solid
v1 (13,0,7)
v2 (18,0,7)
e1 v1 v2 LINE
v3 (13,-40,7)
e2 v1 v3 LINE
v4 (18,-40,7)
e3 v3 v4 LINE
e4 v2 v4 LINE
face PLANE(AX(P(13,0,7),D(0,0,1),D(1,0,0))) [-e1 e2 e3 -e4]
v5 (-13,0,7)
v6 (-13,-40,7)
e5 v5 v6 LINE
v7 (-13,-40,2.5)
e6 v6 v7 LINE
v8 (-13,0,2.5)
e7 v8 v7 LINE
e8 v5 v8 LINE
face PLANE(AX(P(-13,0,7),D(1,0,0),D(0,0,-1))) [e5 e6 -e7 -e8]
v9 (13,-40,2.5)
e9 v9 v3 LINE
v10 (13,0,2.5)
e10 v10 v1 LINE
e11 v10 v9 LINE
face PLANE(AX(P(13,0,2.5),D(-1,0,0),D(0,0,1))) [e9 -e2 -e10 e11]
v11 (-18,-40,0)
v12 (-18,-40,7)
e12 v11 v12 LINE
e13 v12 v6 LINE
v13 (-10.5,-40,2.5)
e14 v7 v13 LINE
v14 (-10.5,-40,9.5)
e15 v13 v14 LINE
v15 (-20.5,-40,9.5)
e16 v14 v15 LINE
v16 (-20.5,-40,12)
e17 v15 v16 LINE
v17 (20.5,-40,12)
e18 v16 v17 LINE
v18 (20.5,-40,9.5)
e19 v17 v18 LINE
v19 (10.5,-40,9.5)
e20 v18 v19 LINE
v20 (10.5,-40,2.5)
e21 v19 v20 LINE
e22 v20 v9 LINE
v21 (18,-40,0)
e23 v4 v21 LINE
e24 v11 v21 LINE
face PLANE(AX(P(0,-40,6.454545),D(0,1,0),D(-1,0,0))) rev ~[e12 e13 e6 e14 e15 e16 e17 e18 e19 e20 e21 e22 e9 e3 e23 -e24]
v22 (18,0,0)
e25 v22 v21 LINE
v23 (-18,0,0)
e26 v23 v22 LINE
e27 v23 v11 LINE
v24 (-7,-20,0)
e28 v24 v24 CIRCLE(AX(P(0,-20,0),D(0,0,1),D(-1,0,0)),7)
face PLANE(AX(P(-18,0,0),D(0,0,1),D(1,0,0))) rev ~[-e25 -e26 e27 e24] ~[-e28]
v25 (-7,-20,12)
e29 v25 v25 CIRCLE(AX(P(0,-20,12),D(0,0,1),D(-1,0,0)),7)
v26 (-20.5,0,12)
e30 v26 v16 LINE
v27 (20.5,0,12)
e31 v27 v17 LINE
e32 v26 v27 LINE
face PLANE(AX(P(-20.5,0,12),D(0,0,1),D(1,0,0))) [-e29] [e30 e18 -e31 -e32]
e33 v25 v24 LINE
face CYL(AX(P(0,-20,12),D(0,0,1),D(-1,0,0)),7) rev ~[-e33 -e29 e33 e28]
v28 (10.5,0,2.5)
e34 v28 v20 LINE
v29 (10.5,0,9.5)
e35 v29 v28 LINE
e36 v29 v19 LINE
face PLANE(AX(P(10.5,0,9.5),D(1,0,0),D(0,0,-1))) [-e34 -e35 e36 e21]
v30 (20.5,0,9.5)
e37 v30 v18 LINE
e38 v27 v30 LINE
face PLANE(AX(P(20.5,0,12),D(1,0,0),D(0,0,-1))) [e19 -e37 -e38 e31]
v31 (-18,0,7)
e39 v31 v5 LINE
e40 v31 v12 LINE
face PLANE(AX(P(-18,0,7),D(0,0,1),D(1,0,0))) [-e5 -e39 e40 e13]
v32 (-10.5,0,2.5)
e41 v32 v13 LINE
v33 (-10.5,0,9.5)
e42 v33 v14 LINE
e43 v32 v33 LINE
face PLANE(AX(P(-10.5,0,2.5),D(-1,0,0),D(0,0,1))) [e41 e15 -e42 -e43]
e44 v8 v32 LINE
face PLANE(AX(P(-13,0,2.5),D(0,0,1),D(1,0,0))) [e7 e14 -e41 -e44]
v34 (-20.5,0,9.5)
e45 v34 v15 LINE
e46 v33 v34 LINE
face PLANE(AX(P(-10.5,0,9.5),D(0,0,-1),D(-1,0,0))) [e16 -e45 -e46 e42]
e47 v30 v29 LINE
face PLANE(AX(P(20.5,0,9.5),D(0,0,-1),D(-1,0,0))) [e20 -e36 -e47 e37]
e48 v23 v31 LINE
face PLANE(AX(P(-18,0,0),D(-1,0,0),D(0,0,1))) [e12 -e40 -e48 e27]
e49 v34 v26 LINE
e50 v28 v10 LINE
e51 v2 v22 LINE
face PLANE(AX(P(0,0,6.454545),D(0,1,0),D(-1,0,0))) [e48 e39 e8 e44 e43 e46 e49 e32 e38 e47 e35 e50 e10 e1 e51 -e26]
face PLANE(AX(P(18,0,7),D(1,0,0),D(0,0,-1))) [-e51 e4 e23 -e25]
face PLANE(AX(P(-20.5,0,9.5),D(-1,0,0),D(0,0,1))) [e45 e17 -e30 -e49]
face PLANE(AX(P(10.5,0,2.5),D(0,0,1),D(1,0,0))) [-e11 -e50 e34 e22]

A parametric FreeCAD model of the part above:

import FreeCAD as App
import Part
import Sketcher
from FreeCAD import Vector

doc = App.newDocument("Part")
body = doc.addObject("PartDesign::Body", "Body")

sketch1 = body.newObject("Sketcher::SketchObject", "Sketch")
sketch1.AttachmentSupport = (doc.getObject("XZ_Plane"), [""])
sketch1.MapMode = "FlatFace"
sketch1.addGeometry(Part.LineSegment(Vector(-18, 0, 0), Vector(18, 0, 0)), False)
sketch1.addGeometry(Part.LineSegment(Vector(18, 0, 0), Vector(18, 7, 0)), False)
sketch1.addGeometry(Part.LineSegment(Vector(18, 7, 0), Vector(13, 7, 0)), False)
sketch1.addGeometry(Part.LineSegment(Vector(13, 7, 0), Vector(13, 2.5, 0)), False)
sketch1.addGeometry(Part.LineSegment(Vector(13, 2.5, 0), Vector(10.5, 2.5, 0)), False)
sketch1.addGeometry(Part.LineSegment(Vector(10.5, 2.5, 0), Vector(10.5, 9.5, 0)), False)
sketch1.addGeometry(Part.LineSegment(Vector(10.5, 9.5, 0), Vector(20.5, 9.5, 0)), False)
sketch1.addGeometry(Part.LineSegment(Vector(20.5, 9.5, 0), Vector(20.5, 12, 0)), False)
sketch1.addGeometry(Part.LineSegment(Vector(20.5, 12, 0), Vector(-20.5, 12, 0)), False)
sketch1.addGeometry(Part.LineSegment(Vector(-20.5, 12, 0), Vector(-20.5, 9.5, 0)), False)
sketch1.addGeometry(Part.LineSegment(Vector(-20.5, 9.5, 0), Vector(-10.5, 9.5, 0)), False)
sketch1.addGeometry(Part.LineSegment(Vector(-10.5, 9.5, 0), Vector(-10.5, 2.5, 0)), False)
sketch1.addGeometry(Part.LineSegment(Vector(-10.5, 2.5, 0), Vector(-13, 2.5, 0)), False)
sketch1.addGeometry(Part.LineSegment(Vector(-13, 2.5, 0), Vector(-13, 7, 0)), False)
sketch1.addGeometry(Part.LineSegment(Vector(-13, 7, 0), Vector(-18, 7, 0)), False)
sketch1.addGeometry(Part.LineSegment(Vector(-18, 7, 0), Vector(-18, 0, 0)), False)
sketch1.addConstraint(Sketcher.Constraint("Coincident", 0, 2, 1, 1))
sketch1.addConstraint(Sketcher.Constraint("Coincident", 1, 2, 2, 1))
sketch1.addConstraint(Sketcher.Constraint("Coincident", 2, 2, 3, 1))
sketch1.addConstraint(Sketcher.Constraint("Coincident", 3, 2, 4, 1))
sketch1.addConstraint(Sketcher.Constraint("Coincident", 4, 2, 5, 1))
sketch1.addConstraint(Sketcher.Constraint("Coincident", 5, 2, 6, 1))
sketch1.addConstraint(Sketcher.Constraint("Coincident", 6, 2, 7, 1))
sketch1.addConstraint(Sketcher.Constraint("Coincident", 7, 2, 8, 1))
sketch1.addConstraint(Sketcher.Constraint("Coincident", 8, 2, 9, 1))
sketch1.addConstraint(Sketcher.Constraint("Coincident", 9, 2, 10, 1))
sketch1.addConstraint(Sketcher.Constraint("Coincident", 10, 2, 11, 1))
sketch1.addConstraint(Sketcher.Constraint("Coincident", 11, 2, 12, 1))
sketch1.addConstraint(Sketcher.Constraint("Coincident", 12, 2, 13, 1))
sketch1.addConstraint(Sketcher.Constraint("Coincident", 13, 2, 14, 1))
sketch1.addConstraint(Sketcher.Constraint("Coincident", 14, 2, 15, 1))
sketch1.addConstraint(Sketcher.Constraint("Coincident", 15, 2, 0, 1))
sketch1.addConstraint(Sketcher.Constraint("Horizontal", 0))
sketch1.addConstraint(Sketcher.Constraint("Vertical", 1))
sketch1.addConstraint(Sketcher.Constraint("Horizontal", 2))
sketch1.addConstraint(Sketcher.Constraint("Vertical", 3))
sketch1.addConstraint(Sketcher.Constraint("Horizontal", 4))
sketch1.addConstraint(Sketcher.Constraint("Vertical", 5))
sketch1.addConstraint(Sketcher.Constraint("Horizontal", 6))
sketch1.addConstraint(Sketcher.Constraint("Vertical", 7))
sketch1.addConstraint(Sketcher.Constraint("Horizontal", 8))
sketch1.addConstraint(Sketcher.Constraint("Vertical", 9))
sketch1.addConstraint(Sketcher.Constraint("Horizontal", 10))
sketch1.addConstraint(Sketcher.Constraint("Vertical", 11))
sketch1.addConstraint(Sketcher.Constraint("Horizontal", 12))
sketch1.addConstraint(Sketcher.Constraint("Vertical", 13))
sketch1.addConstraint(Sketcher.Constraint("Horizontal", 14))
sketch1.addConstraint(Sketcher.Constraint("Vertical", 15))
sketch1.addConstraint(Sketcher.Constraint("Symmetric", 0, 2, 15, 2, -1, 1))
sketch1.addConstraint(Sketcher.Constraint("Symmetric", 6, 2, 9, 2, -2))
sketch1.addConstraint(Sketcher.Constraint("Symmetric", 4, 2, 11, 2, -2))
sketch1.addConstraint(Sketcher.Constraint("Symmetric", 2, 2, 13, 2, -2))
sketch1.addConstraint(Sketcher.Constraint("Equal", 1, 5))
sketch1.addConstraint(Sketcher.Constraint("Equal", 12, 7))
sketch1.addConstraint(Sketcher.Constraint("DistanceX", 0, 1, 0, 2, 36.0))
sketch1.addConstraint(Sketcher.Constraint("DistanceX", 2, 2, 2, 1, 5.0))
sketch1.addConstraint(Sketcher.Constraint("DistanceX", 6, 1, 6, 2, 10.0))
sketch1.addConstraint(Sketcher.Constraint("DistanceX", 8, 2, 8, 1, 41.0))
sketch1.addConstraint(Sketcher.Constraint("DistanceY", 1, 1, 1, 2, 7.0))
sketch1.addConstraint(Sketcher.Constraint("DistanceY", 3, 2, 3, 1, 4.5))
pad1 = body.newObject("PartDesign::Pad", "Pad")
pad1.Profile = sketch1
pad1.Length = 40

sketch2 = body.newObject("Sketcher::SketchObject", "Sketch001")
sketch2.AttachmentSupport = (doc.getObject("XY_Plane"), [""])
sketch2.MapMode = "FlatFace"
sketch2.AttachmentOffset = App.Placement(Vector(0, 0, 12), App.Rotation())
sketch2.addGeometry(Part.Circle(Vector(0, -20, 0), Vector(0, 0, 1), 7), False)
sketch2.addConstraint(Sketcher.Constraint("PointOnObject", 0, 3, -2))
sketch2.addConstraint(Sketcher.Constraint("Diameter", 0, 14.0))
sketch2.addConstraint(Sketcher.Constraint("DistanceY", 0, 3, -1, 1, 20.0))
pocket1 = body.newObject("PartDesign::Pocket", "Pocket")
pocket1.Profile = sketch2
pocket1.Type = "ThroughAll"

doc.recompute()
